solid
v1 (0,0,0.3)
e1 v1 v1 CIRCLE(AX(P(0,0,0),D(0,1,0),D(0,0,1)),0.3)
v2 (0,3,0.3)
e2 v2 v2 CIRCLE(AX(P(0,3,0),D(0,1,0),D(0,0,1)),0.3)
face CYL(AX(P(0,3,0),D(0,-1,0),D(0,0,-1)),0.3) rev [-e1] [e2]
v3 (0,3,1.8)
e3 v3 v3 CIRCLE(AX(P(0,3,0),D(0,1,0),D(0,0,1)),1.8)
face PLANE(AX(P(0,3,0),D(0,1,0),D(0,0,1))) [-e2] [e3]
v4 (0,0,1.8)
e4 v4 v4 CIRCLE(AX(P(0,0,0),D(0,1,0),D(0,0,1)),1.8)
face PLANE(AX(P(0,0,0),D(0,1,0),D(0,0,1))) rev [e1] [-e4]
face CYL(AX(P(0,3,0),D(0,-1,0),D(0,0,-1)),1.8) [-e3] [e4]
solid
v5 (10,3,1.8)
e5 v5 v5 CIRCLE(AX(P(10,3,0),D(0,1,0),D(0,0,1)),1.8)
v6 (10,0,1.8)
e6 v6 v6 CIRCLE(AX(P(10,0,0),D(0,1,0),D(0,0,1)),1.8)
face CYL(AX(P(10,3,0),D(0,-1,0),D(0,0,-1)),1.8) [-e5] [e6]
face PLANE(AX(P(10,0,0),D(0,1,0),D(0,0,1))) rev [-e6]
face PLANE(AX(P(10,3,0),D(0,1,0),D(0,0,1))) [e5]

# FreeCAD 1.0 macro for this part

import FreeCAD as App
import Part
import Sketcher
Q = App.Units.Quantity

doc = App.newDocument("Part")
body = doc.addObject("PartDesign::Body", "Body")

# Sketch on XZ plane
sketch1 = body.newObject("Sketcher::SketchObject", "Sketch")
sketch1.AttachmentSupport = (doc.getObject("XZ_Plane"), [""])
sketch1.MapMode = "FlatFace"
sketch1.addGeometry([
    Part.Circle(App.Vector(0, 0, 0), App.Vector(0, 0, 1), 1.8),
    Part.Circle(App.Vector(0, 0, 0), App.Vector(0, 0, 1), 0.3),
], False)
sketch1.addConstraint([
    Sketcher.Constraint("Coincident", 0, 3, -1, 1),
    Sketcher.Constraint("Coincident", 1, 3, -1, 1),
    Sketcher.Constraint("Diameter", 0, Q("3.6 mm")),
    Sketcher.Constraint("Diameter", 1, Q("0.6 mm")),
])
pad1 = body.newObject("PartDesign::Pad", "Pad")
pad1.Profile = sketch1
pad1.Length = 3
pad1.Reversed = True
body2 = doc.addObject("PartDesign::Body", "Body001")

# Sketch on XZ plane
sketch2 = body2.newObject("Sketcher::SketchObject", "Sketch001")
sketch2.AttachmentSupport = (doc.getObject("XZ_Plane001"), [""])
sketch2.MapMode = "FlatFace"
sketch2.addGeometry(Part.Circle(App.Vector(10, 0, 0), App.Vector(0, 0, 1), 1.8), False)
sketch2.addConstraint([
    Sketcher.Constraint("PointOnObject", 0, 3, -1),
    Sketcher.Constraint("Diameter", 0, Q("3.6 mm")),
    Sketcher.Constraint("DistanceX", -1, 1, 0, 3, Q("10 mm")),
])
pad2 = body2.newObject("PartDesign::Pad", "Pad001")
pad2.Profile = sketch2
pad2.Length = 3
pad2.Reversed = True

doc.recompute()
